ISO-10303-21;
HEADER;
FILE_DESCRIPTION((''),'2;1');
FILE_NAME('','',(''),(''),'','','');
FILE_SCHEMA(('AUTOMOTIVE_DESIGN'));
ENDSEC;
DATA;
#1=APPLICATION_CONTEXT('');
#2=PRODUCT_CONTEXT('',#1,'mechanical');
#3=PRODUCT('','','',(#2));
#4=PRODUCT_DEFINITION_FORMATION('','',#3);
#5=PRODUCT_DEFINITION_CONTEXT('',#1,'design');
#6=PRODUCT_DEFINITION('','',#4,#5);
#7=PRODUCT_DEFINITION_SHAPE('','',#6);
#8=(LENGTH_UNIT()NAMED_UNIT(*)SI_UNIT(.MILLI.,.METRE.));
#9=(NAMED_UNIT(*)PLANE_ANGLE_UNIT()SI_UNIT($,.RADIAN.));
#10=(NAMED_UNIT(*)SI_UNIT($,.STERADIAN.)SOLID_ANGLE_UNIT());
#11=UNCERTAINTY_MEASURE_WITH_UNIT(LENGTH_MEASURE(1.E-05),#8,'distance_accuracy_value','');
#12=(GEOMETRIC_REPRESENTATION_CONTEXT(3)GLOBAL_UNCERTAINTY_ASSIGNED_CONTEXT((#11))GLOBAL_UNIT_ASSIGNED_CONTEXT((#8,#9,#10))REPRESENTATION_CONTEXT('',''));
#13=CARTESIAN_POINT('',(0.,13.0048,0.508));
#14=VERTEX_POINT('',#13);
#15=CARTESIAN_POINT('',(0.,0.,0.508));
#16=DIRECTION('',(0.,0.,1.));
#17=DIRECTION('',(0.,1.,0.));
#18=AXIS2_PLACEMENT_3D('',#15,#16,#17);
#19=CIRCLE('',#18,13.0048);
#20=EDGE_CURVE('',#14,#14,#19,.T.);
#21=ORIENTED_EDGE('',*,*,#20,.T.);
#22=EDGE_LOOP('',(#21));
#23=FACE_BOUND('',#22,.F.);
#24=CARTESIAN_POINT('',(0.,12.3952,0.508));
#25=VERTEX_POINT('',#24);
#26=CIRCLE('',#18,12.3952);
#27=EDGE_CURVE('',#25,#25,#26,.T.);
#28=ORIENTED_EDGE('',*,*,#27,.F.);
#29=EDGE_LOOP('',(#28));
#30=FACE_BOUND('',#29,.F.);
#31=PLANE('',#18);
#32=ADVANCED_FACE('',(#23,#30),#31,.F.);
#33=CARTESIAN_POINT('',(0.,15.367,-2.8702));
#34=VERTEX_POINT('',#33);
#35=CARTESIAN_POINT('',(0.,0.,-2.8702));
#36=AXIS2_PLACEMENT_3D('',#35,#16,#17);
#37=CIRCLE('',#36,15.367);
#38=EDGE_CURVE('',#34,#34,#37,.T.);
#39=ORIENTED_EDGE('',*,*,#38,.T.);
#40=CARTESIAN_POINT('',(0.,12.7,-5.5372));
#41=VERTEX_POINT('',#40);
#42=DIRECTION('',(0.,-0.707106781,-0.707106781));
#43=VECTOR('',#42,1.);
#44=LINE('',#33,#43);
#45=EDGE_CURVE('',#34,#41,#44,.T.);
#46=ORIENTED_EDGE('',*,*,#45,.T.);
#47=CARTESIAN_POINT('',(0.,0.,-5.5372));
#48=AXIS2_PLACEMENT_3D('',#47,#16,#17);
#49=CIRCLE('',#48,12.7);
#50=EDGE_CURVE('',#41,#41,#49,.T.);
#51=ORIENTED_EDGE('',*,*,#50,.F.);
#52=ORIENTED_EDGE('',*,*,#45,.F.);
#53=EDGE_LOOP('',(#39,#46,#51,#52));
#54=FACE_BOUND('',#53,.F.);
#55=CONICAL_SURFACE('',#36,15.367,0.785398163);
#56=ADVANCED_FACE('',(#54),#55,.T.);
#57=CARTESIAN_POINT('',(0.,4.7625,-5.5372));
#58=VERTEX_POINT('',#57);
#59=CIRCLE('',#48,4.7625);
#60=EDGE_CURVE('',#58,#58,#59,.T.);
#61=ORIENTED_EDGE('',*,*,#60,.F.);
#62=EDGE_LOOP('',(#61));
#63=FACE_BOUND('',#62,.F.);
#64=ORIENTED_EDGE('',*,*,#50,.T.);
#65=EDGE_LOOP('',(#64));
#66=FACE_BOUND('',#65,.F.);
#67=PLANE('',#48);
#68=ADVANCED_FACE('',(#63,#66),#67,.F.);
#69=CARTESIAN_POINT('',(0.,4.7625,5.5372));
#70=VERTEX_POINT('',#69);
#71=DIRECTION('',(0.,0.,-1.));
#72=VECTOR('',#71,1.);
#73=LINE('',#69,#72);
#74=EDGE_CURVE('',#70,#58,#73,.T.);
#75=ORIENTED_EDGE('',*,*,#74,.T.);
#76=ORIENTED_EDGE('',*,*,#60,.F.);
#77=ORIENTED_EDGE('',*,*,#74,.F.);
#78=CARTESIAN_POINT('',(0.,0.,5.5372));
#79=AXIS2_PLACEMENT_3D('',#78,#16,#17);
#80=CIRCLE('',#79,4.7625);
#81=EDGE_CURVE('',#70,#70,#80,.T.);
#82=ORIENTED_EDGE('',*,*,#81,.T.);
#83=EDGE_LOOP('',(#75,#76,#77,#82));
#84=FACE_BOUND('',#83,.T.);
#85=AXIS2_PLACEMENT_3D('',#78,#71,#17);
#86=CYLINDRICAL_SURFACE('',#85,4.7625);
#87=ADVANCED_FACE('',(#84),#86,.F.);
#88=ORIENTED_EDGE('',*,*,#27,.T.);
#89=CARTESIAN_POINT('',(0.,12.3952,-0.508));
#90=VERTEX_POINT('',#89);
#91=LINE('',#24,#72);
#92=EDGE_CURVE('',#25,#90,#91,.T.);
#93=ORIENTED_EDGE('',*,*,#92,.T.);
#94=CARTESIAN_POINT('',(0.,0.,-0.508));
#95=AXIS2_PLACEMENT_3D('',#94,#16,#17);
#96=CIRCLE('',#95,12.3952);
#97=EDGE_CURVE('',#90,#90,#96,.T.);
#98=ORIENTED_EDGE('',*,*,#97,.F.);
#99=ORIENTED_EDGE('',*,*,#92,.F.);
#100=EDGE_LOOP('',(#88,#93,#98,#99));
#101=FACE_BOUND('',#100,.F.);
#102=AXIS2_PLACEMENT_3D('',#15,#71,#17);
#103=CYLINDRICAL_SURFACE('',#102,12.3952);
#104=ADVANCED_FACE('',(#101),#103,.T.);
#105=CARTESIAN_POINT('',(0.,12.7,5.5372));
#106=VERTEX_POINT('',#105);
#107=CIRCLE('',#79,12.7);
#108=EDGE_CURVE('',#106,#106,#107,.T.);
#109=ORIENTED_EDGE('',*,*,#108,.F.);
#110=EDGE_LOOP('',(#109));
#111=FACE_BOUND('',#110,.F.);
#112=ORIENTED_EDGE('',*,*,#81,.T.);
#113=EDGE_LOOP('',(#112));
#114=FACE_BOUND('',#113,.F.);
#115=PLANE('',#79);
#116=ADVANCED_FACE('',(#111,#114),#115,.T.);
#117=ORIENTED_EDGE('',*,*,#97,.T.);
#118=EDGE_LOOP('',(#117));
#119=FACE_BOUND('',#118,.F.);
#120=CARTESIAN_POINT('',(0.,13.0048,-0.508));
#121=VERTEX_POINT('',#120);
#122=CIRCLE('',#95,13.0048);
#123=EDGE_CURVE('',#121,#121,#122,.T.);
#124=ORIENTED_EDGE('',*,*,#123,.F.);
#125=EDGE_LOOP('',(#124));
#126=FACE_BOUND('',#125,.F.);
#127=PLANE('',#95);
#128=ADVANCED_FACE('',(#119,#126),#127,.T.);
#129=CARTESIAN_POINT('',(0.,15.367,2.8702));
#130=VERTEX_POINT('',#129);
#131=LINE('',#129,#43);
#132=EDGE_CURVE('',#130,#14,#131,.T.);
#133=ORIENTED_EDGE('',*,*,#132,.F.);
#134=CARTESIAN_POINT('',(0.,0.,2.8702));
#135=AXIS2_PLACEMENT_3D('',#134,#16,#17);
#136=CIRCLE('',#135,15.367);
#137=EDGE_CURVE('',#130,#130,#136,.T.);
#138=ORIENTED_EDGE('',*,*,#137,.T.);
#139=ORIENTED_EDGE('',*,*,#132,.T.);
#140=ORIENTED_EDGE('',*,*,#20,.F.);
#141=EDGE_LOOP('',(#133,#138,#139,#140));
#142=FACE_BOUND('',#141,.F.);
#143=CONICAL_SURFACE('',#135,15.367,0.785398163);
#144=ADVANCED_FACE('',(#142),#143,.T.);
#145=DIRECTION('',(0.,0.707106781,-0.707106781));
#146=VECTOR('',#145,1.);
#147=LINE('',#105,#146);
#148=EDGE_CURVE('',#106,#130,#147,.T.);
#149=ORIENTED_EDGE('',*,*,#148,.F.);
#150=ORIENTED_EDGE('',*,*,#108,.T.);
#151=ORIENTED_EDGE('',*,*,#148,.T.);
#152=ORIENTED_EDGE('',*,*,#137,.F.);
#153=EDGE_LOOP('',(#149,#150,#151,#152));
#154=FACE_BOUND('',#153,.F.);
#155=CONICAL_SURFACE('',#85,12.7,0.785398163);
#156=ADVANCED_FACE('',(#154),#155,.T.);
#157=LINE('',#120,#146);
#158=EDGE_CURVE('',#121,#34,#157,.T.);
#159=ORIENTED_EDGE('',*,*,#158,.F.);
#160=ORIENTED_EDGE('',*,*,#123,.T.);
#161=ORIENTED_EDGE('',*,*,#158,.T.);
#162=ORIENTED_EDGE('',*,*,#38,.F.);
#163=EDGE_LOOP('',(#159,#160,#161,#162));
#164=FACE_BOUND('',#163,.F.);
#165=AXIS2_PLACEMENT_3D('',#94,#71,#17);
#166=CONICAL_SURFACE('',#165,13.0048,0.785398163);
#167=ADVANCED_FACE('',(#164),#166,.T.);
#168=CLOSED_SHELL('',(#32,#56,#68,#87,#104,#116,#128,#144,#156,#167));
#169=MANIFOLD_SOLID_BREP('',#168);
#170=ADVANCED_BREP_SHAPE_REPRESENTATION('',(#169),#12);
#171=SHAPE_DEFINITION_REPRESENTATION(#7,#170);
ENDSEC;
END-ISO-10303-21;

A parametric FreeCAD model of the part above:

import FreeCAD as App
import Part
import Sketcher
Q = App.Units.Quantity


def add_polygon(sketch, points):
    """Adds a closed chain of lines whose ends are joined by coincident constraints."""
    first, n = sketch.GeometryCount, len(points)
    for a, b in zip(points, points[1:] + points[:1]):
        sketch.addGeometry(Part.LineSegment(App.Vector(*a, 0), App.Vector(*b, 0)), False)
    for i in range(n):
        sketch.addConstraint(Sketcher.Constraint("Coincident", first + i, 2, first + (i + 1) % n, 1))

doc = App.newDocument("Part")
body = doc.addObject("PartDesign::Body", "Body")

sketch1 = body.newObject("Sketcher::SketchObject", "Sketch")
sketch1.AttachmentSupport = (doc.getObject("YZ_Plane"), [""])
sketch1.MapMode = "FlatFace"
add_polygon(sketch1, [(12.7, 5.5), (4.8, 5.5), (4.8, -5.5), (12.7, -5.5), (15.4, -2.9), (13, -0.5), (12.4, -0.5), (12.4, 0.5), (13, 0.5), (15.4, 2.9)])
sketch1.addConstraint(Sketcher.Constraint("Horizontal", 0))
sketch1.addConstraint(Sketcher.Constraint("Vertical", 1))
sketch1.addConstraint(Sketcher.Constraint("Horizontal", 2))
sketch1.addConstraint(Sketcher.Constraint("Horizontal", 5))
sketch1.addConstraint(Sketcher.Constraint("Vertical", 6))
sketch1.addConstraint(Sketcher.Constraint("Horizontal", 7))
sketch1.addConstraint(Sketcher.Constraint("Symmetric", 4, 2, 7, 2, -1))
sketch1.addConstraint(Sketcher.Constraint("Symmetric", 3, 2, 8, 2, -1))
sketch1.addConstraint(Sketcher.Constraint("Symmetric", 2, 2, 9, 2, -1))
sketch1.addConstraint(Sketcher.Constraint("Perpendicular", 3, 4))
sketch1.addConstraint(Sketcher.Constraint("Perpendicular", 4, 8))
sketch1.addConstraint(Sketcher.Constraint("DistanceY", 6, 1, 6, 2, Q("0.04 in")))
sketch1.addConstraint(Sketcher.Constraint("DistanceX", -1, 1, 2, 2, Q("0.5 in")))
sketch1.addConstraint(Sketcher.Constraint("DistanceY", 1, 2, 1, 1, Q("0.436 in")))
sketch1.addConstraint(Sketcher.Constraint("DistanceX", -1, 1, 0, 2, Q("0.1875 in")))
sketch1.addConstraint(Sketcher.Constraint("DistanceX", -1, 1, 3, 2, Q("0.605 in")))
sketch1.addConstraint(Sketcher.Constraint("DistanceX", 5, 2, 5, 1, Q("0.024 in")))
revolution = body.newObject("PartDesign::Revolution", "Revolution")
revolution.Profile = sketch1
revolution.ReferenceAxis = (sketch1, ["V_Axis"])
revolution.Angle = 360

doc.recompute()
